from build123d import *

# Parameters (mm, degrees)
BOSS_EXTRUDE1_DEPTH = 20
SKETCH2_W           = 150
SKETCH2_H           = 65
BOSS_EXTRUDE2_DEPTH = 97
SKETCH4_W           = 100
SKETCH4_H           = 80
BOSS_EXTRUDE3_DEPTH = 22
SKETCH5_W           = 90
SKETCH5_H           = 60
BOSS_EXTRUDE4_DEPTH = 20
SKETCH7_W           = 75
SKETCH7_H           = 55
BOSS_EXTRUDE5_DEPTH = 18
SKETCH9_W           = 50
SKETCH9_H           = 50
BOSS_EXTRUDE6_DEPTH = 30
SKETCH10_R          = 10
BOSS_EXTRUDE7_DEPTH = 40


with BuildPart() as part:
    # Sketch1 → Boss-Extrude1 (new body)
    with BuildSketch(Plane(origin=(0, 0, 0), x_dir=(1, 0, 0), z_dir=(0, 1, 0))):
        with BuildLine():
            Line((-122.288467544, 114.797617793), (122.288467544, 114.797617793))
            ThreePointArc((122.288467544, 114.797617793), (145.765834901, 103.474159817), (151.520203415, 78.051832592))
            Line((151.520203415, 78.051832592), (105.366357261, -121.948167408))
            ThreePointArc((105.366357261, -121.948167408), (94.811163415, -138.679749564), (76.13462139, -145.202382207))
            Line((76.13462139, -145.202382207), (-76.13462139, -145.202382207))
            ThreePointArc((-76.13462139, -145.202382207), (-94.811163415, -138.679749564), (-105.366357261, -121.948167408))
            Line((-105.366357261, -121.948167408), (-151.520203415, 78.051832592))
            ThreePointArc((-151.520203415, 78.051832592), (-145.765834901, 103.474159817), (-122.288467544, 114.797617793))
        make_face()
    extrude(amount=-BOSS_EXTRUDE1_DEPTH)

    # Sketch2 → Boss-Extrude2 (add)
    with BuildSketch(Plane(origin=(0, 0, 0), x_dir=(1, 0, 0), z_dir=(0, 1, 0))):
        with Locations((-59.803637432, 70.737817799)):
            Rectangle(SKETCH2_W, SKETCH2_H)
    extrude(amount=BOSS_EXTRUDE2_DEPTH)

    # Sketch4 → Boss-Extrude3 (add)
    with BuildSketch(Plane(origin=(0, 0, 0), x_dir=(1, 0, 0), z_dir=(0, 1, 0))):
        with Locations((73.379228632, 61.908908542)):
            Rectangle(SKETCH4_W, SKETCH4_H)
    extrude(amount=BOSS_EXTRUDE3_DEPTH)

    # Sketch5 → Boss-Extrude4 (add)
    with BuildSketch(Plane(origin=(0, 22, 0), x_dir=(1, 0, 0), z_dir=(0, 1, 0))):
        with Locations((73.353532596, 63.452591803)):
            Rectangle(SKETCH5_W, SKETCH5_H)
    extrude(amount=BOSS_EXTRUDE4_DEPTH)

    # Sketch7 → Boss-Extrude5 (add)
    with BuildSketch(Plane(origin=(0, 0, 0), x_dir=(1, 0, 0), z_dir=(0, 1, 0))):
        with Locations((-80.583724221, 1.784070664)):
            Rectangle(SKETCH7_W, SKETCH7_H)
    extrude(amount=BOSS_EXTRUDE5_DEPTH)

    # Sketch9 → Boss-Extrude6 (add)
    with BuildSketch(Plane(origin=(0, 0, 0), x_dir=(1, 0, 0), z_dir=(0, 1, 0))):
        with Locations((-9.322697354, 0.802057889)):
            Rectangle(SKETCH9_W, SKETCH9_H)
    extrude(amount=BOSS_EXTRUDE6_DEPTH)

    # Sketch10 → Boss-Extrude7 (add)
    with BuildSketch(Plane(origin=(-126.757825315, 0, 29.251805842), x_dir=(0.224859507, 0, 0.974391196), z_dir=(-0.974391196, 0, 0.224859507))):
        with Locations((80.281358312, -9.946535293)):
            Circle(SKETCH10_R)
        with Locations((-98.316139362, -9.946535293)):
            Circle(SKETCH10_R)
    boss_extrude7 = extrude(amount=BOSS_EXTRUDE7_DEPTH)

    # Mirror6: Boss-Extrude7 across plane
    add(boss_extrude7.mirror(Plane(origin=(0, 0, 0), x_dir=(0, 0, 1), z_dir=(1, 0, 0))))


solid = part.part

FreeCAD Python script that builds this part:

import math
import FreeCAD as App
import Part
import Sketcher

V = App.Vector
Q = App.Units.Quantity

doc = App.newDocument("Part")
body = doc.addObject("PartDesign::Body", "Body")

# Sketch on XZ plane
sketch1 = body.newObject("Sketcher::SketchObject", "Sketch")
sketch1.AttachmentSupport = (doc.getObject("XZ_Plane"), [""])
sketch1.MapMode = "FlatFace"
sketch1.addGeometry([
    Part.LineSegment(V(122.288468, -114.797618, 0), V(-122.288468, -114.797618, 0)),  # 0
    Part.ArcOfCircle(Part.Circle(V(-122.288468, -84.797618, 0), V(0, 0, 1), 30), math.radians(167.005383), math.radians(270)),  # 1
    Part.LineSegment(V(-151.520203, -78.051833, 0), V(-105.366357, 121.948167, 0)),  # 2
    Part.ArcOfCircle(Part.Circle(V(-76.134621, 115.202382, 0), V(0, 0, 1), 30), math.radians(90), math.radians(167.005383)),  # 3
    Part.LineSegment(V(-76.134621, 145.202382, 0), V(76.134621, 145.202382, 0)),  # 4
    Part.ArcOfCircle(Part.Circle(V(76.134621, 115.202382, 0), V(0, 0, 1), 30), math.radians(12.994617), math.radians(90)),  # 5
    Part.LineSegment(V(105.366357, 121.948167, 0), V(151.520203, -78.051833, 0)),  # 6
    Part.ArcOfCircle(Part.Circle(V(122.288468, -84.797618, 0), V(0, 0, 1), 30), math.radians(-90), math.radians(12.994617)),  # 7
], False)
sketch1.addConstraint([
    Sketcher.Constraint("Tangent", 0, 2, 1, 2),
    Sketcher.Constraint("Tangent", 1, 1, 2, 1),
    Sketcher.Constraint("Tangent", 2, 2, 3, 2),
    Sketcher.Constraint("Tangent", 3, 1, 4, 1),
    Sketcher.Constraint("Tangent", 4, 2, 5, 2),
    Sketcher.Constraint("Tangent", 5, 1, 6, 1),
    Sketcher.Constraint("Tangent", 6, 2, 7, 2),
    Sketcher.Constraint("Tangent", 7, 1, 0, 1),
    Sketcher.Constraint("Horizontal", 0),
    Sketcher.Constraint("Horizontal", 4),
    Sketcher.Constraint("Equal", 1, 3),
    Sketcher.Constraint("Equal", 3, 5),
    Sketcher.Constraint("Equal", 5, 7),
    Sketcher.Constraint("Symmetric", 2, 2, 5, 1, -2),
    Sketcher.Constraint("Radius", 1, Q("30 mm")),
    Sketcher.Constraint("DistanceY", 1, 3, 3, 3, Q("200 mm")),
    Sketcher.Constraint("Distance", 2, Q("205.25637 mm")),
    Sketcher.Constraint("DistanceX", 0, 2, 0, 1, Q("244.576935 mm")),
    Sketcher.Constraint("DistanceY", 1, 3, -1, 1, Q("84.797618 mm")),
])
pad1 = body.newObject("PartDesign::Pad", "Pad")
pad1.Profile = sketch1
pad1.Length = 20

# Sketch on XZ plane
sketch2 = body.newObject("Sketcher::SketchObject", "Sketch001")
sketch2.AttachmentSupport = (doc.getObject("XZ_Plane"), [""])
sketch2.MapMode = "FlatFace"
sketch2.addGeometry([
    Part.LineSegment(V(-134.803637, -103.237818, 0), V(-134.803637, -38.237818, 0)),
    Part.LineSegment(V(-134.803637, -38.237818, 0), V(15.196363, -38.237818, 0)),
    Part.LineSegment(V(15.196363, -38.237818, 0), V(15.196363, -103.237818, 0)),
    Part.LineSegment(V(15.196363, -103.237818, 0), V(-134.803637, -103.237818, 0)),
], False)
sketch2.addConstraint([
    Sketcher.Constraint("Coincident", 0, 2, 1, 1),
    Sketcher.Constraint("Coincident", 1, 2, 2, 1),
    Sketcher.Constraint("Coincident", 2, 2, 3, 1),
    Sketcher.Constraint("Coincident", 3, 2, 0, 1),
    Sketcher.Constraint("Vertical", 0),
    Sketcher.Constraint("Horizontal", 1),
    Sketcher.Constraint("Vertical", 2),
    Sketcher.Constraint("Horizontal", 3),
    Sketcher.Constraint("DistanceX", 1, 1, 1, 2, Q("150 mm")),
    Sketcher.Constraint("DistanceY", 0, 1, 0, 2, Q("65 mm")),
    Sketcher.Constraint("DistanceX", 0, 2, -1, 1, Q("134.803637 mm")),
    Sketcher.Constraint("DistanceY", 0, 2, -1, 1, Q("38.237818 mm")),
])
pad2 = body.newObject("PartDesign::Pad", "Pad001")
pad2.Profile = sketch2
pad2.Length = 97
pad2.Reversed = True

# Sketch on XZ plane
sketch3 = body.newObject("Sketcher::SketchObject", "Sketch002")
sketch3.AttachmentSupport = (doc.getObject("XZ_Plane"), [""])
sketch3.MapMode = "FlatFace"
sketch3.addGeometry([
    Part.LineSegment(V(23.379229, -101.908909, 0), V(23.379229, -21.908909, 0)),
    Part.LineSegment(V(23.379229, -21.908909, 0), V(123.379229, -21.908909, 0)),
    Part.LineSegment(V(123.379229, -21.908909, 0), V(123.379229, -101.908909, 0)),
    Part.LineSegment(V(123.379229, -101.908909, 0), V(23.379229, -101.908909, 0)),
], False)
sketch3.addConstraint([
    Sketcher.Constraint("Coincident", 0, 2, 1, 1),
    Sketcher.Constraint("Coincident", 1, 2, 2, 1),
    Sketcher.Constraint("Coincident", 2, 2, 3, 1),
    Sketcher.Constraint("Coincident", 3, 2, 0, 1),
    Sketcher.Constraint("Vertical", 0),
    Sketcher.Constraint("Horizontal", 1),
    Sketcher.Constraint("Vertical", 2),
    Sketcher.Constraint("Horizontal", 3),
    Sketcher.Constraint("DistanceX", 1, 1, 1, 2, Q("100 mm")),
    Sketcher.Constraint("DistanceY", 0, 1, 0, 2, Q("80 mm")),
    Sketcher.Constraint("DistanceX", -1, 1, 0, 2, Q("23.379229 mm")),
    Sketcher.Constraint("DistanceY", 0, 2, -1, 1, Q("21.908909 mm")),
])
pad3 = body.newObject("PartDesign::Pad", "Pad002")
pad3.Profile = sketch3
pad3.Length = 22
pad3.Reversed = True

# Sketch on XZ plane
sketch4 = body.newObject("Sketcher::SketchObject", "Sketch003")
sketch4.AttachmentSupport = (doc.getObject("XZ_Plane"), [""])
sketch4.MapMode = "FlatFace"
sketch4.AttachmentOffset = App.Placement(V(0, 0, -22), App.Rotation())
sketch4.addGeometry([
    Part.LineSegment(V(28.353533, -93.452592, 0), V(28.353533, -33.452592, 0)),
    Part.LineSegment(V(28.353533, -33.452592, 0), V(118.353533, -33.452592, 0)),
    Part.LineSegment(V(118.353533, -33.452592, 0), V(118.353533, -93.452592, 0)),
    Part.LineSegment(V(118.353533, -93.452592, 0), V(28.353533, -93.452592, 0)),
], False)
sketch4.addConstraint([
    Sketcher.Constraint("Coincident", 0, 2, 1, 1),
    Sketcher.Constraint("Coincident", 1, 2, 2, 1),
    Sketcher.Constraint("Coincident", 2, 2, 3, 1),
    Sketcher.Constraint("Coincident", 3, 2, 0, 1),
    Sketcher.Constraint("Vertical", 0),
    Sketcher.Constraint("Horizontal", 1),
    Sketcher.Constraint("Vertical", 2),
    Sketcher.Constraint("Horizontal", 3),
    Sketcher.Constraint("DistanceX", 1, 1, 1, 2, Q("90 mm")),
    Sketcher.Constraint("DistanceY", 0, 1, 0, 2, Q("60 mm")),
    Sketcher.Constraint("DistanceY", 0, 2, -1, 1, Q("33.452592 mm")),
    Sketcher.Constraint("DistanceX", -1, 1, 0, 2, Q("28.353533 mm")),
])
pad4 = body.newObject("PartDesign::Pad", "Pad003")
pad4.Profile = sketch4
pad4.Length = 20
pad4.Reversed = True

# Sketch on XZ plane
sketch5 = body.newObject("Sketcher::SketchObject", "Sketch004")
sketch5.AttachmentSupport = (doc.getObject("XZ_Plane"), [""])
sketch5.MapMode = "FlatFace"
sketch5.addGeometry([
    Part.LineSegment(V(-118.083724, -29.284071, 0), V(-118.083724, 25.715929, 0)),
    Part.LineSegment(V(-118.083724, 25.715929, 0), V(-43.083724, 25.715929, 0)),
    Part.LineSegment(V(-43.083724, 25.715929, 0), V(-43.083724, -29.284071, 0)),
    Part.LineSegment(V(-43.083724, -29.284071, 0), V(-118.083724, -29.284071, 0)),
], False)
sketch5.addConstraint([
    Sketcher.Constraint("Coincident", 0, 2, 1, 1),
    Sketcher.Constraint("Coincident", 1, 2, 2, 1),
    Sketcher.Constraint("Coincident", 2, 2, 3, 1),
    Sketcher.Constraint("Coincident", 3, 2, 0, 1),
    Sketcher.Constraint("Vertical", 0),
    Sketcher.Constraint("Horizontal", 1),
    Sketcher.Constraint("Vertical", 2),
    Sketcher.Constraint("Horizontal", 3),
    Sketcher.Constraint("DistanceX", 1, 1, 1, 2, Q("75 mm")),
    Sketcher.Constraint("DistanceY", 0, 1, 0, 2, Q("55 mm")),
    Sketcher.Constraint("DistanceY", -1, 1, 0, 2, Q("25.715929 mm")),
    Sketcher.Constraint("DistanceX", 0, 2, -1, 1, Q("118.083724 mm")),
])
pad5 = body.newObject("PartDesign::Pad", "Pad004")
pad5.Profile = sketch5
pad5.Length = 18
pad5.Reversed = True

# Sketch on XZ plane
sketch6 = body.newObject("Sketcher::SketchObject", "Sketch005")
sketch6.AttachmentSupport = (doc.getObject("XZ_Plane"), [""])
sketch6.MapMode = "FlatFace"
sketch6.addGeometry([
    Part.LineSegment(V(-34.322697, -25.802058, 0), V(-34.322697, 24.197942, 0)),
    Part.LineSegment(V(-34.322697, 24.197942, 0), V(15.677303, 24.197942, 0)),
    Part.LineSegment(V(15.677303, 24.197942, 0), V(15.677303, -25.802058, 0)),
    Part.LineSegment(V(15.677303, -25.802058, 0), V(-34.322697, -25.802058, 0)),
], False)
sketch6.addConstraint([
    Sketcher.Constraint("Coincident", 0, 2, 1, 1),
    Sketcher.Constraint("Coincident", 1, 2, 2, 1),
    Sketcher.Constraint("Coincident", 2, 2, 3, 1),
    Sketcher.Constraint("Coincident", 3, 2, 0, 1),
    Sketcher.Constraint("Vertical", 0),
    Sketcher.Constraint("Horizontal", 1),
    Sketcher.Constraint("Vertical", 2),
    Sketcher.Constraint("Horizontal", 3),
    Sketcher.Constraint("Equal", 3, 0),
    Sketcher.Constraint("DistanceX", 1, 1, 1, 2, Q("50 mm")),
    Sketcher.Constraint("DistanceX", 0, 2, -1, 1, Q("34.322697 mm")),
    Sketcher.Constraint("DistanceY", -1, 1, 0, 2, Q("24.197942 mm")),
])
pad6 = body.newObject("PartDesign::Pad", "Pad005")
pad6.Profile = sketch6
pad6.Length = 30
pad6.Reversed = True

# Sketch on an angled plane
sketch7 = body.newObject("Sketcher::SketchObject", "Sketch006")
sketch7.Placement = App.Placement(V(-126.757825, 0, 29.251806), App.Rotation(V(0.224859507, 0, 0.974391196), V(0, 1.000000001, 0), V(-0.974391196, 0, 0.224859507), "ZXY"))
sketch7.addGeometry([
    Part.Circle(V(80.281358, -9.946535, 0), V(0, 0, 1), 10),
    Part.Circle(V(-98.316139, -9.946535, 0), V(0, 0, 1), 10),
], False)
sketch7.addConstraint([
    Sketcher.Constraint("Equal", 0, 1),
    Sketcher.Constraint("Horizontal", 0, 3, 1, 3),
    Sketcher.Constraint("Diameter", 0, Q("20 mm")),
    Sketcher.Constraint("DistanceX", -1, 1, 0, 3, Q("80.281358 mm")),
    Sketcher.Constraint("DistanceX", 1, 3, -1, 1, Q("98.316139 mm")),
    Sketcher.Constraint("DistanceY", 0, 3, -1, 1, Q("9.946535 mm")),
])
pad7 = body.newObject("PartDesign::Pad", "Pad006")
pad7.Profile = sketch7
pad7.Length = 40
doc.recompute()

mirrored = body.newObject("PartDesign::Mirrored", "Mirrored")
mirrored.Originals = [pad7]
mirrored.MirrorPlane = (doc.getObject("YZ_Plane"), [""])
body.Tip = mirrored

doc.recompute()
